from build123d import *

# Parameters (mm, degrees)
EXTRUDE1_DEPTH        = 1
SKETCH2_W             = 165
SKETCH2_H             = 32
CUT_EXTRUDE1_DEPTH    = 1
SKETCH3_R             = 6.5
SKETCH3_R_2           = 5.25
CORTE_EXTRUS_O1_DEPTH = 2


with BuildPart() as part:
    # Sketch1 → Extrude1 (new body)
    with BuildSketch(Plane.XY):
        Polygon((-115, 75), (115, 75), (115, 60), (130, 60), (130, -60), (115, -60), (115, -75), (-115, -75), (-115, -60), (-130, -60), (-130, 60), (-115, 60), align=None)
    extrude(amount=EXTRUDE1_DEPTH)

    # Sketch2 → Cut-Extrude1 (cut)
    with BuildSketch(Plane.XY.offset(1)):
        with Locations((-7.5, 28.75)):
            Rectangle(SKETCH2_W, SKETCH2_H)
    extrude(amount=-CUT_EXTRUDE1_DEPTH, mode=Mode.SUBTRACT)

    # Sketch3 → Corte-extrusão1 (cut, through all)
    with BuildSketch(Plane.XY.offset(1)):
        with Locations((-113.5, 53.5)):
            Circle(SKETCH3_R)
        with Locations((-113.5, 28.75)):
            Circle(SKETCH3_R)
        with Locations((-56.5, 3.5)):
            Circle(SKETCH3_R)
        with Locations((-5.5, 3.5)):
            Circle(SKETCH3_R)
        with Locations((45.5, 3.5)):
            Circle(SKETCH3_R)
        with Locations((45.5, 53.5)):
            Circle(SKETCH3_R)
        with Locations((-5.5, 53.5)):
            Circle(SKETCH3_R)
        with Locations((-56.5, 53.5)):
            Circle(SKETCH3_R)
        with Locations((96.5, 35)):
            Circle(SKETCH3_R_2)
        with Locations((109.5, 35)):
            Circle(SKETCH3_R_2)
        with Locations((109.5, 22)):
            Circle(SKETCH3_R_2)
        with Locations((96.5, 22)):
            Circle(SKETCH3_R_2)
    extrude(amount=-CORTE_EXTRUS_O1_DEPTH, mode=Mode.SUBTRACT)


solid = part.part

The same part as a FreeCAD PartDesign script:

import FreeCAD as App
import Part
import Sketcher
from FreeCAD import Vector


def add_polygon(sketch, points):
    """Adds a closed chain of lines whose ends are joined by coincident constraints."""
    first, n = sketch.GeometryCount, len(points)
    for a, b in zip(points, points[1:] + points[:1]):
        sketch.addGeometry(Part.LineSegment(App.Vector(*a, 0), App.Vector(*b, 0)), False)
    for i in range(n):
        sketch.addConstraint(Sketcher.Constraint("Coincident", first + i, 2, first + (i + 1) % n, 1))

doc = App.newDocument("Part")
body = doc.addObject("PartDesign::Body", "Body")

# Sketch on XY plane
sketch1 = body.newObject("Sketcher::SketchObject", "Sketch")
sketch1.AttachmentSupport = (doc.getObject("XY_Plane"), [""])
sketch1.MapMode = "FlatFace"
add_polygon(sketch1, [(115, 75), (-115, 75), (-115, 60), (-130, 60), (-130, -60), (-115, -60), (-115, -75), (115, -75), (115, -60), (130, -60), (130, 60), (115, 60)])  # lines 0-11
sketch1.addConstraint(Sketcher.Constraint("Horizontal", 0))
sketch1.addConstraint(Sketcher.Constraint("Vertical", 1))
sketch1.addConstraint(Sketcher.Constraint("Horizontal", 2))
sketch1.addConstraint(Sketcher.Constraint("Vertical", 3))
sketch1.addConstraint(Sketcher.Constraint("Horizontal", 4))
sketch1.addConstraint(Sketcher.Constraint("Vertical", 5))
sketch1.addConstraint(Sketcher.Constraint("Horizontal", 6))
sketch1.addConstraint(Sketcher.Constraint("Vertical", 7))
sketch1.addConstraint(Sketcher.Constraint("Horizontal", 8))
sketch1.addConstraint(Sketcher.Constraint("Vertical", 9))
sketch1.addConstraint(Sketcher.Constraint("Horizontal", 10))
sketch1.addConstraint(Sketcher.Constraint("Vertical", 11))
sketch1.addConstraint(Sketcher.Constraint("Symmetric", 0, 2, 6, 2, -1, 1))
sketch1.addConstraint(Sketcher.Constraint("Symmetric", 2, 2, 8, 2, -1, 1))
sketch1.addConstraint(Sketcher.Constraint("Symmetric", 4, 2, 10, 2, -1, 1))
sketch1.addConstraint(Sketcher.Constraint("Symmetric", 4, 2, 7, 2, -2))
sketch1.addConstraint(Sketcher.Constraint("Equal", 10, 1))
sketch1.addConstraint(Sketcher.Constraint("DistanceX", 0, 2, 0, 1, 230.0))
sketch1.addConstraint(Sketcher.Constraint("DistanceX", 2, 2, 2, 1, 15.0))
sketch1.addConstraint(Sketcher.Constraint("DistanceY", 3, 2, 3, 1, 120.0))
pad1 = body.newObject("PartDesign::Pad", "Pad")
pad1.Profile = sketch1
pad1.Length = 1

# Sketch on XY plane
sketch2 = body.newObject("Sketcher::SketchObject", "Sketch001")
sketch2.AttachmentSupport = (doc.getObject("XY_Plane"), [""])
sketch2.MapMode = "FlatFace"
sketch2.AttachmentOffset = App.Placement(Vector(0, 0, 1), App.Rotation())
add_polygon(sketch2, [(-90, 44.75), (-90, 12.75), (75, 12.75), (75, 44.75)])  # lines 0-3
sketch2.addConstraint(Sketcher.Constraint("Vertical", 0))
sketch2.addConstraint(Sketcher.Constraint("Horizontal", 1))
sketch2.addConstraint(Sketcher.Constraint("Vertical", 2))
sketch2.addConstraint(Sketcher.Constraint("Horizontal", 3))
sketch2.addConstraint(Sketcher.Constraint("DistanceX", 1, 1, 1, 2, 165.0))
sketch2.addConstraint(Sketcher.Constraint("DistanceY", 0, 2, 0, 1, 32.0))
sketch2.addConstraint(Sketcher.Constraint("DistanceX", 0, 2, -1, 1, 90.0))
sketch2.addConstraint(Sketcher.Constraint("DistanceY", -1, 1, 0, 2, 12.75))
pocket1 = body.newObject("PartDesign::Pocket", "Pocket")
pocket1.Profile = sketch2
pocket1.Length = 1

# Sketch on XY plane
sketch3 = body.newObject("Sketcher::SketchObject", "Sketch002")
sketch3.AttachmentSupport = (doc.getObject("XY_Plane"), [""])
sketch3.MapMode = "FlatFace"
sketch3.AttachmentOffset = App.Placement(Vector(0, 0, 1), App.Rotation())
sketch3.addGeometry(Part.Circle(Vector(-113.5, 53.5, 0), Vector(0, 0, 1), 6.5), False)
sketch3.addGeometry(Part.Circle(Vector(-113.5, 28.75, 0), Vector(0, 0, 1), 6.5), False)
sketch3.addGeometry(Part.Circle(Vector(-56.5, 3.5, 0), Vector(0, 0, 1), 6.5), False)
sketch3.addGeometry(Part.Circle(Vector(-5.5, 3.5, 0), Vector(0, 0, 1), 6.5), False)
sketch3.addGeometry(Part.Circle(Vector(45.5, 3.5, 0), Vector(0, 0, 1), 6.5), False)
sketch3.addGeometry(Part.Circle(Vector(45.5, 53.5, 0), Vector(0, 0, 1), 6.5), False)
sketch3.addGeometry(Part.Circle(Vector(-5.5, 53.5, 0), Vector(0, 0, 1), 6.5), False)
sketch3.addGeometry(Part.Circle(Vector(-56.5, 53.5, 0), Vector(0, 0, 1), 6.5), False)
sketch3.addGeometry(Part.Circle(Vector(96.5, 35, 0), Vector(0, 0, 1), 5.25), False)
sketch3.addGeometry(Part.Circle(Vector(109.5, 35, 0), Vector(0, 0, 1), 5.25), False)
sketch3.addGeometry(Part.Circle(Vector(109.5, 22, 0), Vector(0, 0, 1), 5.25), False)
sketch3.addGeometry(Part.Circle(Vector(96.5, 22, 0), Vector(0, 0, 1), 5.25), False)
sketch3.addConstraint(Sketcher.Constraint("Equal", 0, 1))
sketch3.addConstraint(Sketcher.Constraint("Equal", 1, 2))
sketch3.addConstraint(Sketcher.Constraint("Equal", 2, 3))
sketch3.addConstraint(Sketcher.Constraint("Equal", 3, 4))
sketch3.addConstraint(Sketcher.Constraint("Equal", 4, 5))
sketch3.addConstraint(Sketcher.Constraint("Equal", 5, 6))
sketch3.addConstraint(Sketcher.Constraint("Equal", 6, 7))
sketch3.addConstraint(Sketcher.Constraint("Equal", 8, 9))
sketch3.addConstraint(Sketcher.Constraint("Equal", 9, 10))
sketch3.addConstraint(Sketcher.Constraint("Equal", 10, 11))
sketch3.addConstraint(Sketcher.Constraint("Horizontal", 2, 3, 3, 3))
sketch3.addConstraint(Sketcher.Constraint("Horizontal", 3, 3, 4, 3))
sketch3.addConstraint(Sketcher.Constraint("Horizontal", 0, 3, 5, 3))
sketch3.addConstraint(Sketcher.Constraint("Horizontal", 5, 3, 6, 3))
sketch3.addConstraint(Sketcher.Constraint("Horizontal", 6, 3, 7, 3))
sketch3.addConstraint(Sketcher.Constraint("Horizontal", 8, 3, 9, 3))
sketch3.addConstraint(Sketcher.Constraint("Horizontal", 10, 3, 11, 3))
sketch3.addConstraint(Sketcher.Constraint("Vertical", 0, 3, 1, 3))
sketch3.addConstraint(Sketcher.Constraint("Vertical", 4, 3, 5, 3))
sketch3.addConstraint(Sketcher.Constraint("Vertical", 3, 3, 6, 3))
sketch3.addConstraint(Sketcher.Constraint("Vertical", 2, 3, 7, 3))
sketch3.addConstraint(Sketcher.Constraint("Vertical", 9, 3, 10, 3))
sketch3.addConstraint(Sketcher.Constraint("Vertical", 8, 3, 11, 3))
sketch3.addConstraint(Sketcher.Constraint("Diameter", 0, 13.0))
sketch3.addConstraint(Sketcher.Constraint("Diameter", 8, 10.5))
sketch3.addConstraint(Sketcher.Constraint("DistanceY", -1, 1, 8, 3, 35.0))
sketch3.addConstraint(Sketcher.Constraint("DistanceY", -1, 1, 10, 3, 22.0))
sketch3.addConstraint(Sketcher.Constraint("DistanceX", 1, 3, 2, 3, 57.0))
sketch3.addConstraint(Sketcher.Constraint("DistanceY", 2, 3, 0, 3, 50.0))
sketch3.addConstraint(Sketcher.Constraint("DistanceX", 2, 3, 3, 3, 51.0))
sketch3.addConstraint(Sketcher.Constraint("DistanceX", 3, 3, 4, 3, 51.0))
sketch3.addConstraint(Sketcher.Constraint("DistanceX", 5, 3, 8, 3, 51.0))
sketch3.addConstraint(Sketcher.Constraint("DistanceX", 8, 3, 9, 3, 13.0))
sketch3.addConstraint(Sketcher.Constraint("DistanceX", 0, 3, -1, 1, 113.5))
sketch3.addConstraint(Sketcher.Constraint("DistanceY", -1, 1, 0, 3, 53.5))
sketch3.addConstraint(Sketcher.Constraint("DistanceY", -1, 1, 1, 3, 28.75))
pocket2 = body.newObject("PartDesign::Pocket", "Pocket001")
pocket2.Profile = sketch3
pocket2.Type = "ThroughAll"

doc.recompute()
